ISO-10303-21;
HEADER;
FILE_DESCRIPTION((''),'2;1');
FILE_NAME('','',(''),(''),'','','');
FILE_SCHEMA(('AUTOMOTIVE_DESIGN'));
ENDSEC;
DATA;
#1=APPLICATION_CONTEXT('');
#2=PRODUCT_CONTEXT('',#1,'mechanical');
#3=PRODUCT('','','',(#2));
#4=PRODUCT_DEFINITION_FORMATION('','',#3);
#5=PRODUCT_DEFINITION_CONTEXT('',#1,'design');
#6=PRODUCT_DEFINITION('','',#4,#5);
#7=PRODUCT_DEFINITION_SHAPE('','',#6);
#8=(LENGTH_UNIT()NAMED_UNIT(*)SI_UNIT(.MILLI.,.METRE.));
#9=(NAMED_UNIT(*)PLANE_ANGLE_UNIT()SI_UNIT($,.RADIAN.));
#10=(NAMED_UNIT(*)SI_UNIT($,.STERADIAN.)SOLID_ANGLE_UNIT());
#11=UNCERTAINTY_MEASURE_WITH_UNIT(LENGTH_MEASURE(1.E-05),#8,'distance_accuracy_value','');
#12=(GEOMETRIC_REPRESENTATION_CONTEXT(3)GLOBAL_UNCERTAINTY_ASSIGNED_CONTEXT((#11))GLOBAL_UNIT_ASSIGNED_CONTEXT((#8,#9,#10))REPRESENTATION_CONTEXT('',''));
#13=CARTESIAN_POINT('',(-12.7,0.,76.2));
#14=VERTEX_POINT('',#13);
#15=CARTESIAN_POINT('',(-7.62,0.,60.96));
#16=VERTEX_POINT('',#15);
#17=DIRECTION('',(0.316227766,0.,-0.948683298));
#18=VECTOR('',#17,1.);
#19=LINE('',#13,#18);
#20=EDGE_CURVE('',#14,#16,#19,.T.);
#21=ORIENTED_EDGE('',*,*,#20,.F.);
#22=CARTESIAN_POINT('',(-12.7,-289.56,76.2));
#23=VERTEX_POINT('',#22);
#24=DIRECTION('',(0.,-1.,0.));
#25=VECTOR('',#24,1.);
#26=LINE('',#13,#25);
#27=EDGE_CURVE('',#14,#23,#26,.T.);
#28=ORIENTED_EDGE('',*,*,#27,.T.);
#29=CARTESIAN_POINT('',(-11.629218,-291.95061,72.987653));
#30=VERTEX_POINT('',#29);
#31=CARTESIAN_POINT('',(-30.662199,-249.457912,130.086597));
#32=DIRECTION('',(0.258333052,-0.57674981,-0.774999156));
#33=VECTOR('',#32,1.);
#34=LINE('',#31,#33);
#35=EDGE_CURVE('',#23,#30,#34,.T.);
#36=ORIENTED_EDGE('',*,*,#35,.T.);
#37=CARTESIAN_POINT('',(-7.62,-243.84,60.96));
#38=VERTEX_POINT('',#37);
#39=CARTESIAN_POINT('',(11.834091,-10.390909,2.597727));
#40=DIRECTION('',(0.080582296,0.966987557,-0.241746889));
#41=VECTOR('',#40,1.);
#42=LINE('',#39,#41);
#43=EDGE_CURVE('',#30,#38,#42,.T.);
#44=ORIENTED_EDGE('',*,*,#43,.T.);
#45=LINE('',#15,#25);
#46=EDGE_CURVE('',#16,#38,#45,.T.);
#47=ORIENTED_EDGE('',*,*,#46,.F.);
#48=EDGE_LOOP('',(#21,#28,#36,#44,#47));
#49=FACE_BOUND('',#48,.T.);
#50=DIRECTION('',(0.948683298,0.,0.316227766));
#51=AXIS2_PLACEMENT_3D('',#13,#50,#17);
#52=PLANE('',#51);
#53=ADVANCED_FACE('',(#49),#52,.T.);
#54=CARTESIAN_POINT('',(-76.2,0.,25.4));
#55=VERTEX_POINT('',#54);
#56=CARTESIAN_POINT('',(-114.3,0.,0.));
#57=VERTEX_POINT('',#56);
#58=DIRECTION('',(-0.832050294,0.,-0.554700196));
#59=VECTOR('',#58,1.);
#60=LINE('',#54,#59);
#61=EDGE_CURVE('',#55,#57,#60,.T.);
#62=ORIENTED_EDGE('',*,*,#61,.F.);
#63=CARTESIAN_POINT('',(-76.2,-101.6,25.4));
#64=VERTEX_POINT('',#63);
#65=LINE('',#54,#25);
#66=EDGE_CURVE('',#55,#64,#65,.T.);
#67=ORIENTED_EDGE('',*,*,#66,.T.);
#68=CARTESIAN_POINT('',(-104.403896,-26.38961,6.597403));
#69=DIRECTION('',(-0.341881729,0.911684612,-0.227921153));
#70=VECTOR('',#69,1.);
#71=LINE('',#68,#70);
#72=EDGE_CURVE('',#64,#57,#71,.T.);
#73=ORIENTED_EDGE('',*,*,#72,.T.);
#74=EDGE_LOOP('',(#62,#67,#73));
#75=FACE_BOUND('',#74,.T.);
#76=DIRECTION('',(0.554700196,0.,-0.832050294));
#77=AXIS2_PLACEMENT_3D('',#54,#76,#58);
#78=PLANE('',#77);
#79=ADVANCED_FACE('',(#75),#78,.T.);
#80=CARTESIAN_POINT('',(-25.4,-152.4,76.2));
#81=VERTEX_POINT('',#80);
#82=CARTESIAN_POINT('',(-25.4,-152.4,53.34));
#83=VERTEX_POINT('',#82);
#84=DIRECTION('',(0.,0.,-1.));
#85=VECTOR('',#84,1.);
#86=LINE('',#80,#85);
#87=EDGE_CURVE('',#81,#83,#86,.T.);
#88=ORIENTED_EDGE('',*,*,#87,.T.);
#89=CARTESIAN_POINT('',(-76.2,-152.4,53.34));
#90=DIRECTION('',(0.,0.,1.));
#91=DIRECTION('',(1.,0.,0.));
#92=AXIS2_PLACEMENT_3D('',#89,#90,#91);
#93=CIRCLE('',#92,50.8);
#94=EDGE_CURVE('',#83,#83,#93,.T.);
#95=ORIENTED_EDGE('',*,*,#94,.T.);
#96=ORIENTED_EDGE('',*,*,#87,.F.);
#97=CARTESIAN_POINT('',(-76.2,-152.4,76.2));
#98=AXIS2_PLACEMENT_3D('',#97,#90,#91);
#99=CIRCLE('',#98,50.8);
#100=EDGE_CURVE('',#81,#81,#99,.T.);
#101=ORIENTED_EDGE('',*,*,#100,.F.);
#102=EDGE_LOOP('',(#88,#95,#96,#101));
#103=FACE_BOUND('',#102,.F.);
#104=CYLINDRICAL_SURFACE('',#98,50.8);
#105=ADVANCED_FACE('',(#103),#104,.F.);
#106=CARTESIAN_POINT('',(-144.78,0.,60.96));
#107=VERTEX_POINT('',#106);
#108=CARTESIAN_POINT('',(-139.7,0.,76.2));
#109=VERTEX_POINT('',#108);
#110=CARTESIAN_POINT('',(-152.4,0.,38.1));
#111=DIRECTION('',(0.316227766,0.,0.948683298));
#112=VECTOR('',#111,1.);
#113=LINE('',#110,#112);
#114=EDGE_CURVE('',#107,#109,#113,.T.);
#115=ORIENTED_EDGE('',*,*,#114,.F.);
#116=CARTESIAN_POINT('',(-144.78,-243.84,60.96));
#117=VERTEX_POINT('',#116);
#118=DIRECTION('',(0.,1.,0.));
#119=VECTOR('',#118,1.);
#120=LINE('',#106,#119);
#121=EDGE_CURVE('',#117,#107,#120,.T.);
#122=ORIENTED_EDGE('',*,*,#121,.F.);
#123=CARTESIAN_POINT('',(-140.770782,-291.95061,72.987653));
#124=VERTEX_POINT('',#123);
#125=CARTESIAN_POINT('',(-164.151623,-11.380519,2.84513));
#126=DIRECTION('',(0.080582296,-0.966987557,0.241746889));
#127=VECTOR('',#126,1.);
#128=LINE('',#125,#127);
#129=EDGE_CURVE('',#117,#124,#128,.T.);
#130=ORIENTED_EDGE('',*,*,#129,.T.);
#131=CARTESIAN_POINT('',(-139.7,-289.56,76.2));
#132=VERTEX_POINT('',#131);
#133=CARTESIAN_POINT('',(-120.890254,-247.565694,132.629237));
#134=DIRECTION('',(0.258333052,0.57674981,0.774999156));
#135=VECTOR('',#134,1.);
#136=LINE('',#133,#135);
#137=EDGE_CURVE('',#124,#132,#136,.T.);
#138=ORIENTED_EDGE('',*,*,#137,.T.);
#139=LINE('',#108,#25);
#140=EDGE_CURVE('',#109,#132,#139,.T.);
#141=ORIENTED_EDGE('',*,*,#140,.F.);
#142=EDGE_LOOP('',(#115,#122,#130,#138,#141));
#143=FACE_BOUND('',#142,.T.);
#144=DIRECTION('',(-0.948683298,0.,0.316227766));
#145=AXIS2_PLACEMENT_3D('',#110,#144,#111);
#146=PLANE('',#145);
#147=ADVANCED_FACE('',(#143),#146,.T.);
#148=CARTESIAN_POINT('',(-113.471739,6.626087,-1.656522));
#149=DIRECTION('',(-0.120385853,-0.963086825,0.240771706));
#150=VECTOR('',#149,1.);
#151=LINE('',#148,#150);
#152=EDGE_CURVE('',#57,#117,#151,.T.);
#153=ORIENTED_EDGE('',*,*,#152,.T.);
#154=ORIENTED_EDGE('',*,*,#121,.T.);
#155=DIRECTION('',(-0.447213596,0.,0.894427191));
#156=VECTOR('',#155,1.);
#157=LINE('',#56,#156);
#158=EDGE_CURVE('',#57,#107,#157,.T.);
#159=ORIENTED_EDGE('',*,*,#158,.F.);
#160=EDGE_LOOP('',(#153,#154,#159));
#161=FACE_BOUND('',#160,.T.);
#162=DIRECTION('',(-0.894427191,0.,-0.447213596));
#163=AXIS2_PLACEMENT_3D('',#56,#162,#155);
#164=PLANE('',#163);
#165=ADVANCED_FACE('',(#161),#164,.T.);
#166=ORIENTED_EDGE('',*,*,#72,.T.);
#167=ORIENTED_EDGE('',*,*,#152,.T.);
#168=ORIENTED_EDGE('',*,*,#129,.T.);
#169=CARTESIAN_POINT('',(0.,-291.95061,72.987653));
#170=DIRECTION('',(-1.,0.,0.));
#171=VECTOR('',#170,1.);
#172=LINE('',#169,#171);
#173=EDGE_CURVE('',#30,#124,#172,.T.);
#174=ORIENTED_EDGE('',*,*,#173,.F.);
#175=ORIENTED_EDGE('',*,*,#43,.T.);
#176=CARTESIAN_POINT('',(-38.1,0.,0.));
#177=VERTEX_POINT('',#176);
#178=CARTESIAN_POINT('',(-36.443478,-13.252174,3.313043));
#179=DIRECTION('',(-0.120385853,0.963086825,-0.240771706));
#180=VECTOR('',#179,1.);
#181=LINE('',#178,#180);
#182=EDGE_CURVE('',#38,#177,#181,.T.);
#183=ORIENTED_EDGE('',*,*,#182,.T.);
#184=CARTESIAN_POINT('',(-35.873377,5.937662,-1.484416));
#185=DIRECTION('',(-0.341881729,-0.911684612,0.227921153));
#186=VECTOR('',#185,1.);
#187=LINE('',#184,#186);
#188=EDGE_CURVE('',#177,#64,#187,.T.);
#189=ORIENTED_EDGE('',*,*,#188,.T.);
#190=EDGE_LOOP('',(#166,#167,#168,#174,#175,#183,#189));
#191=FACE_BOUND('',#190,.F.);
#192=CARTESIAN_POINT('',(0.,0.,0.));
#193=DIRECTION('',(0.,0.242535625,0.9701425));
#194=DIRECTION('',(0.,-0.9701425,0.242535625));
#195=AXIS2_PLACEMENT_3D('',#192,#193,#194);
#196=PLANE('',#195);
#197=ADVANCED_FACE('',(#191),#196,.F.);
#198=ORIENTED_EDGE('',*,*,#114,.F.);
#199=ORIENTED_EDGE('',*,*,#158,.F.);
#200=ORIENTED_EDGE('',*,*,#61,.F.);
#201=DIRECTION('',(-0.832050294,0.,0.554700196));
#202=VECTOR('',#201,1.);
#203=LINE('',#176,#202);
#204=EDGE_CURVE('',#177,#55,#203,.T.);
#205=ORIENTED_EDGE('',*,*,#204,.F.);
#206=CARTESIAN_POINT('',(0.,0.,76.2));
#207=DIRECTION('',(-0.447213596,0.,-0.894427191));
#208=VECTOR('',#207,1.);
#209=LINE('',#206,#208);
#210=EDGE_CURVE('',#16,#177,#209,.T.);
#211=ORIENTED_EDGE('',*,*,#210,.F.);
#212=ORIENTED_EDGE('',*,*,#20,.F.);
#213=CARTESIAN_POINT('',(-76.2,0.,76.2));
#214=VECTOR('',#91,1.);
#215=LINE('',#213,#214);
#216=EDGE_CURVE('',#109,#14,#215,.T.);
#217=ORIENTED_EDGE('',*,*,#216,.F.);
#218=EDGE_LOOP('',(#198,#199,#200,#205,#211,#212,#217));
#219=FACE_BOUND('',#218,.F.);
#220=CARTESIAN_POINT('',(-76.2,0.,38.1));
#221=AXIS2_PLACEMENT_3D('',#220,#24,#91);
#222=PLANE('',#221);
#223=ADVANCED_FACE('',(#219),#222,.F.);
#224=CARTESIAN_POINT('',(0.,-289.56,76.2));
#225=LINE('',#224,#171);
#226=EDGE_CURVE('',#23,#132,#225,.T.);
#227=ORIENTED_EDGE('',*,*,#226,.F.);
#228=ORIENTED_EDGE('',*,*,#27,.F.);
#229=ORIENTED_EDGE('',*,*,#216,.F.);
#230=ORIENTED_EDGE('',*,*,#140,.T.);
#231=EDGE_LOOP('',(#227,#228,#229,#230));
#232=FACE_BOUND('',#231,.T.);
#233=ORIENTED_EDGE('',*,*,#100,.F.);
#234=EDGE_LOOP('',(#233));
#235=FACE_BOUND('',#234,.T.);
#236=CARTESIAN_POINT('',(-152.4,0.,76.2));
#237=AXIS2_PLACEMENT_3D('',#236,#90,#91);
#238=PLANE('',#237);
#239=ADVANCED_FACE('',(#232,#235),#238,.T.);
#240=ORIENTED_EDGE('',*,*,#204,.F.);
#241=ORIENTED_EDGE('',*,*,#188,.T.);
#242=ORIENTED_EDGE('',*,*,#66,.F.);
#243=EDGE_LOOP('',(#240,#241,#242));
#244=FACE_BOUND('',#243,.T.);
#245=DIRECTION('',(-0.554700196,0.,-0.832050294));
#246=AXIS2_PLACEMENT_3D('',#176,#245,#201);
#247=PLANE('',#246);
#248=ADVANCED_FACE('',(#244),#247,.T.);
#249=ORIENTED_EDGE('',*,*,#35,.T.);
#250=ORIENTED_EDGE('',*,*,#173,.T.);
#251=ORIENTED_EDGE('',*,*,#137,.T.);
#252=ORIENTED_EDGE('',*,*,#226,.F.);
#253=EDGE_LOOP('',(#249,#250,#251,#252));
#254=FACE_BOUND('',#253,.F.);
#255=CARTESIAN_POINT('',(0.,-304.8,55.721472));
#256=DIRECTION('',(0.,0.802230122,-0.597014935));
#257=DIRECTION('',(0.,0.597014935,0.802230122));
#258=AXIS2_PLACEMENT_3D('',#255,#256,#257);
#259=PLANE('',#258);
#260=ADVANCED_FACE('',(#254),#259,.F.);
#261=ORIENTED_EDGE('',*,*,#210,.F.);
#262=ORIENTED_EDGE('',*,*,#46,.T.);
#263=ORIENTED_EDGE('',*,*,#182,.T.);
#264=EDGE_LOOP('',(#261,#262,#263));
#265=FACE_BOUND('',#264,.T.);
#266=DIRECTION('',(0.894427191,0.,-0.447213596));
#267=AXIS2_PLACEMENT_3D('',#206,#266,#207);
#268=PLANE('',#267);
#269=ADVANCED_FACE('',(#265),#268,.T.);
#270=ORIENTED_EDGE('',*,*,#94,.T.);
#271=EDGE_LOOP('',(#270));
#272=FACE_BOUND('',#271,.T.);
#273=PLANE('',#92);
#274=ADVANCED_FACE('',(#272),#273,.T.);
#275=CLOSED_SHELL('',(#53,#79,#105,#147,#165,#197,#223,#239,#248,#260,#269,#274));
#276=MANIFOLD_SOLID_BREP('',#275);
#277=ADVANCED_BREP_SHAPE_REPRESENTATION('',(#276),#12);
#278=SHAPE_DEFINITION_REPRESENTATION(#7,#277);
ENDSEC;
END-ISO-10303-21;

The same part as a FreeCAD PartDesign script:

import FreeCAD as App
import Part
import Sketcher
from FreeCAD import Vector
Q = App.Units.Quantity

doc = App.newDocument("Part")
params = doc.addObject("Spreadsheet::Sheet", "Params")
for row, (alias, value) in enumerate([
    ("sketch1_width", "6 in"),
    ("sketch1_height", "3 in"),
    ("pad1_length", "12 in"),
    ("sketch2_width", "12 in"),
    ("sketch2_height", "3 in"),
    ("pocket1_length", "12 in"),
    ("sketch3_height", "3 in"),
    ("sketch3_width", "1.5 in"),
    ("pocket2_length", "12 in"),
    ("sketch4_height", "3 in"),
    ("sketch4_width", "1.5 in"),
    ("pocket3_length", "12 in"),
    ("sketch5_width", "0.6 in"),
    ("sketch5_length", "1.005 in"),
    ("pocket4_length", "12 in"),
    ("sketch6_width", "0.5 in"),
    ("sketch6_height", "1.5 in"),
    ("pocket5_length", "12 in"),
    ("sketch7_width", "0.5 in"),
    ("sketch7_height", "1.5 in"),
    ("pocket6_length", "12 in"),
    ("sketch8_width", "3 in"),
    ("pocket7_length", "12 in"),
    ("sketch9_diameter", "4 in"),
    ("pocket8_length", "0.9 in"),
], start=1):
    params.set(f"A{row}", alias)
    params.set(f"B{row}", "=" + value)
    params.setAlias(f"B{row}", alias)

body = doc.addObject("PartDesign::Body", "Body")

# Sketch on XZ plane
sketch1 = body.newObject("Sketcher::SketchObject", "Sketch")
sketch1.AttachmentSupport = (doc.getObject("XZ_Plane"), [""])
sketch1.MapMode = "FlatFace"
sketch1.addGeometry(Part.LineSegment(Vector(-152.4, 76.2, 0), Vector(-152.4, 0, 0)), False)
sketch1.addGeometry(Part.LineSegment(Vector(-152.4, 0, 0), Vector(0, 0, 0)), False)
sketch1.addGeometry(Part.LineSegment(Vector(0, 0, 0), Vector(0, 76.2, 0)), False)
sketch1.addGeometry(Part.LineSegment(Vector(0, 76.2, 0), Vector(-152.4, 76.2, 0)), False)
sketch1.addConstraint(Sketcher.Constraint("Coincident", 0, 2, 1, 1))
sketch1.addConstraint(Sketcher.Constraint("Coincident", 1, 2, 2, 1))
sketch1.addConstraint(Sketcher.Constraint("Coincident", 2, 2, 3, 1))
sketch1.addConstraint(Sketcher.Constraint("Coincident", 3, 2, 0, 1))
sketch1.addConstraint(Sketcher.Constraint("Vertical", 0))
sketch1.addConstraint(Sketcher.Constraint("Horizontal", 1))
sketch1.addConstraint(Sketcher.Constraint("Vertical", 2))
sketch1.addConstraint(Sketcher.Constraint("Horizontal", 3))
sketch1.addConstraint(Sketcher.Constraint("Coincident", 1, 2, -1, 1))
sketch1.addConstraint(Sketcher.Constraint("DistanceX", 1, 1, 1, 2, Q("6 in")))
sketch1.addConstraint(Sketcher.Constraint("DistanceY", 0, 2, 0, 1, Q("3 in")))
sketch1.setExpression("Constraints[9]", "Params.sketch1_width")
sketch1.setExpression("Constraints[10]", "Params.sketch1_height")
pad1 = body.newObject("PartDesign::Pad", "Pad")
pad1.Profile = sketch1
pad1.setExpression("Length", "Params.pad1_length")

# Sketch on YZ plane
sketch2 = body.newObject("Sketcher::SketchObject", "Sketch001")
sketch2.AttachmentSupport = (doc.getObject("YZ_Plane"), [""])
sketch2.MapMode = "FlatFace"
sketch2.addGeometry(Part.LineSegment(Vector(-304.8, 0, 0), Vector(0, 0, 0)), False)
sketch2.addGeometry(Part.LineSegment(Vector(0, 0, 0), Vector(-304.8, 76.2, 0)), False)
sketch2.addGeometry(Part.LineSegment(Vector(-304.8, 76.2, 0), Vector(-304.8, 0, 0)), False)
sketch2.addConstraint(Sketcher.Constraint("Coincident", 0, 2, 1, 1))
sketch2.addConstraint(Sketcher.Constraint("Coincident", 1, 2, 2, 1))
sketch2.addConstraint(Sketcher.Constraint("Coincident", 2, 2, 0, 1))
sketch2.addConstraint(Sketcher.Constraint("Horizontal", 0))
sketch2.addConstraint(Sketcher.Constraint("Vertical", 2))
sketch2.addConstraint(Sketcher.Constraint("Coincident", 0, 2, -1, 1))
sketch2.addConstraint(Sketcher.Constraint("DistanceX", 0, 1, 0, 2, Q("12 in")))
sketch2.addConstraint(Sketcher.Constraint("DistanceY", 2, 2, 2, 1, Q("3 in")))
sketch2.setExpression("Constraints[6]", "Params.sketch2_width")
sketch2.setExpression("Constraints[7]", "Params.sketch2_height")
pocket1 = body.newObject("PartDesign::Pocket", "Pocket")
pocket1.Profile = sketch2
pocket1.setExpression("Length", "Params.pocket1_length")

# Sketch on XZ plane
sketch3 = body.newObject("Sketcher::SketchObject", "Sketch002")
sketch3.AttachmentSupport = (doc.getObject("XZ_Plane"), [""])
sketch3.MapMode = "FlatFace"
sketch3.addGeometry(Part.LineSegment(Vector(-38.1, 0, 0), Vector(0, 0, 0)), False)
sketch3.addGeometry(Part.LineSegment(Vector(0, 0, 0), Vector(0, 76.2, 0)), False)
sketch3.addGeometry(Part.LineSegment(Vector(0, 76.2, 0), Vector(-38.1, 0, 0)), False)
sketch3.addConstraint(Sketcher.Constraint("Coincident", 0, 2, 1, 1))
sketch3.addConstraint(Sketcher.Constraint("Coincident", 1, 2, 2, 1))
sketch3.addConstraint(Sketcher.Constraint("Coincident", 2, 2, 0, 1))
sketch3.addConstraint(Sketcher.Constraint("Horizontal", 0))
sketch3.addConstraint(Sketcher.Constraint("Vertical", 1))
sketch3.addConstraint(Sketcher.Constraint("Coincident", 0, 2, -1, 1))
sketch3.addConstraint(Sketcher.Constraint("DistanceY", 1, 1, 1, 2, Q("3 in")))
sketch3.addConstraint(Sketcher.Constraint("DistanceX", 0, 1, 0, 2, Q("1.5 in")))
sketch3.setExpression("Constraints[6]", "Params.sketch3_height")
sketch3.setExpression("Constraints[7]", "Params.sketch3_width")
pocket2 = body.newObject("PartDesign::Pocket", "Pocket001")
pocket2.Profile = sketch3
pocket2.setExpression("Length", "Params.pocket2_length")
pocket2.Reversed = True

# Sketch on XZ plane
sketch4 = body.newObject("Sketcher::SketchObject", "Sketch003")
sketch4.AttachmentSupport = (doc.getObject("XZ_Plane"), [""])
sketch4.MapMode = "FlatFace"
sketch4.addGeometry(Part.LineSegment(Vector(-152.4, 0, 0), Vector(-114.3, 0, 0)), False)
sketch4.addGeometry(Part.LineSegment(Vector(-114.3, 0, 0), Vector(-152.4, 76.2, 0)), False)
sketch4.addGeometry(Part.LineSegment(Vector(-152.4, 76.2, 0), Vector(-152.4, 0, 0)), False)
sketch4.addConstraint(Sketcher.Constraint("Coincident", 0, 2, 1, 1))
sketch4.addConstraint(Sketcher.Constraint("Coincident", 1, 2, 2, 1))
sketch4.addConstraint(Sketcher.Constraint("Coincident", 2, 2, 0, 1))
sketch4.addConstraint(Sketcher.Constraint("Horizontal", 0))
sketch4.addConstraint(Sketcher.Constraint("Vertical", 2))
sketch4.addConstraint(Sketcher.Constraint("PointOnObject", 0, 2, -1))
sketch4.addConstraint(Sketcher.Constraint("DistanceY", 2, 2, 2, 1, Q("3 in")))
sketch4.addConstraint(Sketcher.Constraint("DistanceX", 0, 1, 0, 2, Q("1.5 in")))
sketch4.addConstraint(Sketcher.Constraint("DistanceX", 1, 2, -1, 1, Q("6 in")))
sketch4.setExpression("Constraints[6]", "Params.sketch4_height")
sketch4.setExpression("Constraints[7]", "Params.sketch4_width")
pocket3 = body.newObject("PartDesign::Pocket", "Pocket002")
pocket3.Profile = sketch4
pocket3.setExpression("Length", "Params.pocket3_length")
pocket3.Reversed = True

# Sketch on YZ plane
sketch5 = body.newObject("Sketcher::SketchObject", "Sketch004")
sketch5.AttachmentSupport = (doc.getObject("YZ_Plane"), [""])
sketch5.MapMode = "FlatFace"
sketch5.addGeometry(Part.LineSegment(Vector(-304.8, 76.2, 0), Vector(-304.8, 55.721472, 0)), False)
sketch5.addGeometry(Part.LineSegment(Vector(-304.8, 55.721472, 0), Vector(-289.56, 76.2, 0)), False)
sketch5.addGeometry(Part.LineSegment(Vector(-289.56, 76.2, 0), Vector(-304.8, 76.2, 0)), False)
sketch5.addConstraint(Sketcher.Constraint("Coincident", 0, 2, 1, 1))
sketch5.addConstraint(Sketcher.Constraint("Coincident", 1, 2, 2, 1))
sketch5.addConstraint(Sketcher.Constraint("Coincident", 2, 2, 0, 1))
sketch5.addConstraint(Sketcher.Constraint("Vertical", 0))
sketch5.addConstraint(Sketcher.Constraint("Horizontal", 2))
sketch5.addConstraint(Sketcher.Constraint("DistanceX", 2, 2, 2, 1, Q("0.6 in")))
sketch5.addConstraint(Sketcher.Constraint("DistanceX", 0, 2, -1, 1, Q("12 in")))
sketch5.addConstraint(Sketcher.Constraint("DistanceY", -1, 1, 1, 2, Q("3 in")))
sketch5.addConstraint(Sketcher.Constraint("Distance", 1, Q("1.005 in")))
sketch5.setExpression("Constraints[5]", "Params.sketch5_width")
sketch5.setExpression("Constraints[8]", "Params.sketch5_length")
pocket4 = body.newObject("PartDesign::Pocket", "Pocket003")
pocket4.Profile = sketch5
pocket4.setExpression("Length", "Params.pocket4_length")

# Sketch on XZ plane
sketch6 = body.newObject("Sketcher::SketchObject", "Sketch005")
sketch6.AttachmentSupport = (doc.getObject("XZ_Plane"), [""])
sketch6.MapMode = "FlatFace"
sketch6.addGeometry(Part.LineSegment(Vector(-12.7, 76.2, 0), Vector(0, 38.1, 0)), False)
sketch6.addGeometry(Part.LineSegment(Vector(0, 38.1, 0), Vector(0, 76.2, 0)), False)
sketch6.addGeometry(Part.LineSegment(Vector(0, 76.2, 0), Vector(-12.7, 76.2, 0)), False)
sketch6.addConstraint(Sketcher.Constraint("Coincident", 0, 2, 1, 1))
sketch6.addConstraint(Sketcher.Constraint("Coincident", 1, 2, 2, 1))
sketch6.addConstraint(Sketcher.Constraint("Coincident", 2, 2, 0, 1))
sketch6.addConstraint(Sketcher.Constraint("Vertical", 1))
sketch6.addConstraint(Sketcher.Constraint("Horizontal", 2))
sketch6.addConstraint(Sketcher.Constraint("PointOnObject", 0, 2, -2))
sketch6.addConstraint(Sketcher.Constraint("DistanceX", 2, 2, 2, 1, Q("0.5 in")))
sketch6.addConstraint(Sketcher.Constraint("DistanceY", 1, 1, 1, 2, Q("1.5 in")))
sketch6.addConstraint(Sketcher.Constraint("DistanceY", -1, 1, 1, 2, Q("3 in")))
sketch6.setExpression("Constraints[6]", "Params.sketch6_width")
sketch6.setExpression("Constraints[7]", "Params.sketch6_height")
pocket5 = body.newObject("PartDesign::Pocket", "Pocket004")
pocket5.Profile = sketch6
pocket5.setExpression("Length", "Params.pocket5_length")
pocket5.Reversed = True

# Sketch on XZ plane
sketch7 = body.newObject("Sketcher::SketchObject", "Sketch006")
sketch7.AttachmentSupport = (doc.getObject("XZ_Plane"), [""])
sketch7.MapMode = "FlatFace"
sketch7.addGeometry(Part.LineSegment(Vector(-152.4, 76.2, 0), Vector(-152.4, 38.1, 0)), False)
sketch7.addGeometry(Part.LineSegment(Vector(-152.4, 38.1, 0), Vector(-139.7, 76.2, 0)), False)
sketch7.addGeometry(Part.LineSegment(Vector(-139.7, 76.2, 0), Vector(-152.4, 76.2, 0)), False)
sketch7.addConstraint(Sketcher.Constraint("Coincident", 0, 2, 1, 1))
sketch7.addConstraint(Sketcher.Constraint("Coincident", 1, 2, 2, 1))
sketch7.addConstraint(Sketcher.Constraint("Coincident", 2, 2, 0, 1))
sketch7.addConstraint(Sketcher.Constraint("Vertical", 0))
sketch7.addConstraint(Sketcher.Constraint("Horizontal", 2))
sketch7.addConstraint(Sketcher.Constraint("DistanceX", 2, 2, 2, 1, Q("0.5 in")))
sketch7.addConstraint(Sketcher.Constraint("DistanceY", 0, 2, 0, 1, Q("1.5 in")))
sketch7.addConstraint(Sketcher.Constraint("DistanceX", 0, 2, -1, 1, Q("6 in")))
sketch7.addConstraint(Sketcher.Constraint("DistanceY", -1, 1, 1, 2, Q("3 in")))
sketch7.setExpression("Constraints[5]", "Params.sketch7_width")
sketch7.setExpression("Constraints[6]", "Params.sketch7_height")
pocket6 = body.newObject("PartDesign::Pocket", "Pocket005")
pocket6.Profile = sketch7
pocket6.setExpression("Length", "Params.pocket6_length")
pocket6.Reversed = True

# Sketch on XZ plane
sketch8 = body.newObject("Sketcher::SketchObject", "Sketch007")
sketch8.AttachmentSupport = (doc.getObject("XZ_Plane"), [""])
sketch8.MapMode = "FlatFace"
sketch8.addGeometry(Part.LineSegment(Vector(-38.1, 0, 0), Vector(-76.2, 25.4, 0)), False)
sketch8.addGeometry(Part.LineSegment(Vector(-76.2, 25.4, 0), Vector(-114.3, 0, 0)), False)
sketch8.addGeometry(Part.LineSegment(Vector(-114.3, 0, 0), Vector(-38.1, 0, 0)), False)
sketch8.addConstraint(Sketcher.Constraint("Coincident", 0, 2, 1, 1))
sketch8.addConstraint(Sketcher.Constraint("Coincident", 1, 2, 2, 1))
sketch8.addConstraint(Sketcher.Constraint("Coincident", 2, 2, 0, 1))
sketch8.addConstraint(Sketcher.Constraint("Horizontal", 2))
sketch8.addConstraint(Sketcher.Constraint("PointOnObject", 1, 2, -1))
sketch8.addConstraint(Sketcher.Constraint("Equal", 0, 1))
sketch8.addConstraint(Sketcher.Constraint("DistanceX", 2, 1, 2, 2, Q("3 in")))
sketch8.addConstraint(Sketcher.Constraint("DistanceX", 0, 2, -1, 1, Q("3 in")))
sketch8.addConstraint(Sketcher.Constraint("DistanceY", -1, 1, 0, 2, Q("1 in")))
sketch8.setExpression("Constraints[6]", "Params.sketch8_width")
pocket7 = body.newObject("PartDesign::Pocket", "Pocket006")
pocket7.Profile = sketch8
pocket7.setExpression("Length", "Params.pocket7_length")
pocket7.Reversed = True

# Sketch on XY plane
sketch9 = body.newObject("Sketcher::SketchObject", "Sketch008")
sketch9.AttachmentSupport = (doc.getObject("XY_Plane"), [""])
sketch9.MapMode = "FlatFace"
sketch9.AttachmentOffset = App.Placement(Vector(0, 0, 3 * 25.4), App.Rotation())
sketch9.addGeometry(Part.Circle(Vector(-76.2, -152.4, 0), Vector(0, 0, 1), 50.8), False)
sketch9.addConstraint(Sketcher.Constraint("Diameter", 0, Q("4 in")))
sketch9.addConstraint(Sketcher.Constraint("DistanceX", 0, 3, -1, 1, Q("3 in")))
sketch9.addConstraint(Sketcher.Constraint("DistanceY", 0, 3, -1, 1, Q("6 in")))
sketch9.setExpression("Constraints[0]", "Params.sketch9_diameter")
pocket8 = body.newObject("PartDesign::Pocket", "Pocket007")
pocket8.Profile = sketch9
pocket8.setExpression("Length", "Params.pocket8_length")

doc.recompute()
